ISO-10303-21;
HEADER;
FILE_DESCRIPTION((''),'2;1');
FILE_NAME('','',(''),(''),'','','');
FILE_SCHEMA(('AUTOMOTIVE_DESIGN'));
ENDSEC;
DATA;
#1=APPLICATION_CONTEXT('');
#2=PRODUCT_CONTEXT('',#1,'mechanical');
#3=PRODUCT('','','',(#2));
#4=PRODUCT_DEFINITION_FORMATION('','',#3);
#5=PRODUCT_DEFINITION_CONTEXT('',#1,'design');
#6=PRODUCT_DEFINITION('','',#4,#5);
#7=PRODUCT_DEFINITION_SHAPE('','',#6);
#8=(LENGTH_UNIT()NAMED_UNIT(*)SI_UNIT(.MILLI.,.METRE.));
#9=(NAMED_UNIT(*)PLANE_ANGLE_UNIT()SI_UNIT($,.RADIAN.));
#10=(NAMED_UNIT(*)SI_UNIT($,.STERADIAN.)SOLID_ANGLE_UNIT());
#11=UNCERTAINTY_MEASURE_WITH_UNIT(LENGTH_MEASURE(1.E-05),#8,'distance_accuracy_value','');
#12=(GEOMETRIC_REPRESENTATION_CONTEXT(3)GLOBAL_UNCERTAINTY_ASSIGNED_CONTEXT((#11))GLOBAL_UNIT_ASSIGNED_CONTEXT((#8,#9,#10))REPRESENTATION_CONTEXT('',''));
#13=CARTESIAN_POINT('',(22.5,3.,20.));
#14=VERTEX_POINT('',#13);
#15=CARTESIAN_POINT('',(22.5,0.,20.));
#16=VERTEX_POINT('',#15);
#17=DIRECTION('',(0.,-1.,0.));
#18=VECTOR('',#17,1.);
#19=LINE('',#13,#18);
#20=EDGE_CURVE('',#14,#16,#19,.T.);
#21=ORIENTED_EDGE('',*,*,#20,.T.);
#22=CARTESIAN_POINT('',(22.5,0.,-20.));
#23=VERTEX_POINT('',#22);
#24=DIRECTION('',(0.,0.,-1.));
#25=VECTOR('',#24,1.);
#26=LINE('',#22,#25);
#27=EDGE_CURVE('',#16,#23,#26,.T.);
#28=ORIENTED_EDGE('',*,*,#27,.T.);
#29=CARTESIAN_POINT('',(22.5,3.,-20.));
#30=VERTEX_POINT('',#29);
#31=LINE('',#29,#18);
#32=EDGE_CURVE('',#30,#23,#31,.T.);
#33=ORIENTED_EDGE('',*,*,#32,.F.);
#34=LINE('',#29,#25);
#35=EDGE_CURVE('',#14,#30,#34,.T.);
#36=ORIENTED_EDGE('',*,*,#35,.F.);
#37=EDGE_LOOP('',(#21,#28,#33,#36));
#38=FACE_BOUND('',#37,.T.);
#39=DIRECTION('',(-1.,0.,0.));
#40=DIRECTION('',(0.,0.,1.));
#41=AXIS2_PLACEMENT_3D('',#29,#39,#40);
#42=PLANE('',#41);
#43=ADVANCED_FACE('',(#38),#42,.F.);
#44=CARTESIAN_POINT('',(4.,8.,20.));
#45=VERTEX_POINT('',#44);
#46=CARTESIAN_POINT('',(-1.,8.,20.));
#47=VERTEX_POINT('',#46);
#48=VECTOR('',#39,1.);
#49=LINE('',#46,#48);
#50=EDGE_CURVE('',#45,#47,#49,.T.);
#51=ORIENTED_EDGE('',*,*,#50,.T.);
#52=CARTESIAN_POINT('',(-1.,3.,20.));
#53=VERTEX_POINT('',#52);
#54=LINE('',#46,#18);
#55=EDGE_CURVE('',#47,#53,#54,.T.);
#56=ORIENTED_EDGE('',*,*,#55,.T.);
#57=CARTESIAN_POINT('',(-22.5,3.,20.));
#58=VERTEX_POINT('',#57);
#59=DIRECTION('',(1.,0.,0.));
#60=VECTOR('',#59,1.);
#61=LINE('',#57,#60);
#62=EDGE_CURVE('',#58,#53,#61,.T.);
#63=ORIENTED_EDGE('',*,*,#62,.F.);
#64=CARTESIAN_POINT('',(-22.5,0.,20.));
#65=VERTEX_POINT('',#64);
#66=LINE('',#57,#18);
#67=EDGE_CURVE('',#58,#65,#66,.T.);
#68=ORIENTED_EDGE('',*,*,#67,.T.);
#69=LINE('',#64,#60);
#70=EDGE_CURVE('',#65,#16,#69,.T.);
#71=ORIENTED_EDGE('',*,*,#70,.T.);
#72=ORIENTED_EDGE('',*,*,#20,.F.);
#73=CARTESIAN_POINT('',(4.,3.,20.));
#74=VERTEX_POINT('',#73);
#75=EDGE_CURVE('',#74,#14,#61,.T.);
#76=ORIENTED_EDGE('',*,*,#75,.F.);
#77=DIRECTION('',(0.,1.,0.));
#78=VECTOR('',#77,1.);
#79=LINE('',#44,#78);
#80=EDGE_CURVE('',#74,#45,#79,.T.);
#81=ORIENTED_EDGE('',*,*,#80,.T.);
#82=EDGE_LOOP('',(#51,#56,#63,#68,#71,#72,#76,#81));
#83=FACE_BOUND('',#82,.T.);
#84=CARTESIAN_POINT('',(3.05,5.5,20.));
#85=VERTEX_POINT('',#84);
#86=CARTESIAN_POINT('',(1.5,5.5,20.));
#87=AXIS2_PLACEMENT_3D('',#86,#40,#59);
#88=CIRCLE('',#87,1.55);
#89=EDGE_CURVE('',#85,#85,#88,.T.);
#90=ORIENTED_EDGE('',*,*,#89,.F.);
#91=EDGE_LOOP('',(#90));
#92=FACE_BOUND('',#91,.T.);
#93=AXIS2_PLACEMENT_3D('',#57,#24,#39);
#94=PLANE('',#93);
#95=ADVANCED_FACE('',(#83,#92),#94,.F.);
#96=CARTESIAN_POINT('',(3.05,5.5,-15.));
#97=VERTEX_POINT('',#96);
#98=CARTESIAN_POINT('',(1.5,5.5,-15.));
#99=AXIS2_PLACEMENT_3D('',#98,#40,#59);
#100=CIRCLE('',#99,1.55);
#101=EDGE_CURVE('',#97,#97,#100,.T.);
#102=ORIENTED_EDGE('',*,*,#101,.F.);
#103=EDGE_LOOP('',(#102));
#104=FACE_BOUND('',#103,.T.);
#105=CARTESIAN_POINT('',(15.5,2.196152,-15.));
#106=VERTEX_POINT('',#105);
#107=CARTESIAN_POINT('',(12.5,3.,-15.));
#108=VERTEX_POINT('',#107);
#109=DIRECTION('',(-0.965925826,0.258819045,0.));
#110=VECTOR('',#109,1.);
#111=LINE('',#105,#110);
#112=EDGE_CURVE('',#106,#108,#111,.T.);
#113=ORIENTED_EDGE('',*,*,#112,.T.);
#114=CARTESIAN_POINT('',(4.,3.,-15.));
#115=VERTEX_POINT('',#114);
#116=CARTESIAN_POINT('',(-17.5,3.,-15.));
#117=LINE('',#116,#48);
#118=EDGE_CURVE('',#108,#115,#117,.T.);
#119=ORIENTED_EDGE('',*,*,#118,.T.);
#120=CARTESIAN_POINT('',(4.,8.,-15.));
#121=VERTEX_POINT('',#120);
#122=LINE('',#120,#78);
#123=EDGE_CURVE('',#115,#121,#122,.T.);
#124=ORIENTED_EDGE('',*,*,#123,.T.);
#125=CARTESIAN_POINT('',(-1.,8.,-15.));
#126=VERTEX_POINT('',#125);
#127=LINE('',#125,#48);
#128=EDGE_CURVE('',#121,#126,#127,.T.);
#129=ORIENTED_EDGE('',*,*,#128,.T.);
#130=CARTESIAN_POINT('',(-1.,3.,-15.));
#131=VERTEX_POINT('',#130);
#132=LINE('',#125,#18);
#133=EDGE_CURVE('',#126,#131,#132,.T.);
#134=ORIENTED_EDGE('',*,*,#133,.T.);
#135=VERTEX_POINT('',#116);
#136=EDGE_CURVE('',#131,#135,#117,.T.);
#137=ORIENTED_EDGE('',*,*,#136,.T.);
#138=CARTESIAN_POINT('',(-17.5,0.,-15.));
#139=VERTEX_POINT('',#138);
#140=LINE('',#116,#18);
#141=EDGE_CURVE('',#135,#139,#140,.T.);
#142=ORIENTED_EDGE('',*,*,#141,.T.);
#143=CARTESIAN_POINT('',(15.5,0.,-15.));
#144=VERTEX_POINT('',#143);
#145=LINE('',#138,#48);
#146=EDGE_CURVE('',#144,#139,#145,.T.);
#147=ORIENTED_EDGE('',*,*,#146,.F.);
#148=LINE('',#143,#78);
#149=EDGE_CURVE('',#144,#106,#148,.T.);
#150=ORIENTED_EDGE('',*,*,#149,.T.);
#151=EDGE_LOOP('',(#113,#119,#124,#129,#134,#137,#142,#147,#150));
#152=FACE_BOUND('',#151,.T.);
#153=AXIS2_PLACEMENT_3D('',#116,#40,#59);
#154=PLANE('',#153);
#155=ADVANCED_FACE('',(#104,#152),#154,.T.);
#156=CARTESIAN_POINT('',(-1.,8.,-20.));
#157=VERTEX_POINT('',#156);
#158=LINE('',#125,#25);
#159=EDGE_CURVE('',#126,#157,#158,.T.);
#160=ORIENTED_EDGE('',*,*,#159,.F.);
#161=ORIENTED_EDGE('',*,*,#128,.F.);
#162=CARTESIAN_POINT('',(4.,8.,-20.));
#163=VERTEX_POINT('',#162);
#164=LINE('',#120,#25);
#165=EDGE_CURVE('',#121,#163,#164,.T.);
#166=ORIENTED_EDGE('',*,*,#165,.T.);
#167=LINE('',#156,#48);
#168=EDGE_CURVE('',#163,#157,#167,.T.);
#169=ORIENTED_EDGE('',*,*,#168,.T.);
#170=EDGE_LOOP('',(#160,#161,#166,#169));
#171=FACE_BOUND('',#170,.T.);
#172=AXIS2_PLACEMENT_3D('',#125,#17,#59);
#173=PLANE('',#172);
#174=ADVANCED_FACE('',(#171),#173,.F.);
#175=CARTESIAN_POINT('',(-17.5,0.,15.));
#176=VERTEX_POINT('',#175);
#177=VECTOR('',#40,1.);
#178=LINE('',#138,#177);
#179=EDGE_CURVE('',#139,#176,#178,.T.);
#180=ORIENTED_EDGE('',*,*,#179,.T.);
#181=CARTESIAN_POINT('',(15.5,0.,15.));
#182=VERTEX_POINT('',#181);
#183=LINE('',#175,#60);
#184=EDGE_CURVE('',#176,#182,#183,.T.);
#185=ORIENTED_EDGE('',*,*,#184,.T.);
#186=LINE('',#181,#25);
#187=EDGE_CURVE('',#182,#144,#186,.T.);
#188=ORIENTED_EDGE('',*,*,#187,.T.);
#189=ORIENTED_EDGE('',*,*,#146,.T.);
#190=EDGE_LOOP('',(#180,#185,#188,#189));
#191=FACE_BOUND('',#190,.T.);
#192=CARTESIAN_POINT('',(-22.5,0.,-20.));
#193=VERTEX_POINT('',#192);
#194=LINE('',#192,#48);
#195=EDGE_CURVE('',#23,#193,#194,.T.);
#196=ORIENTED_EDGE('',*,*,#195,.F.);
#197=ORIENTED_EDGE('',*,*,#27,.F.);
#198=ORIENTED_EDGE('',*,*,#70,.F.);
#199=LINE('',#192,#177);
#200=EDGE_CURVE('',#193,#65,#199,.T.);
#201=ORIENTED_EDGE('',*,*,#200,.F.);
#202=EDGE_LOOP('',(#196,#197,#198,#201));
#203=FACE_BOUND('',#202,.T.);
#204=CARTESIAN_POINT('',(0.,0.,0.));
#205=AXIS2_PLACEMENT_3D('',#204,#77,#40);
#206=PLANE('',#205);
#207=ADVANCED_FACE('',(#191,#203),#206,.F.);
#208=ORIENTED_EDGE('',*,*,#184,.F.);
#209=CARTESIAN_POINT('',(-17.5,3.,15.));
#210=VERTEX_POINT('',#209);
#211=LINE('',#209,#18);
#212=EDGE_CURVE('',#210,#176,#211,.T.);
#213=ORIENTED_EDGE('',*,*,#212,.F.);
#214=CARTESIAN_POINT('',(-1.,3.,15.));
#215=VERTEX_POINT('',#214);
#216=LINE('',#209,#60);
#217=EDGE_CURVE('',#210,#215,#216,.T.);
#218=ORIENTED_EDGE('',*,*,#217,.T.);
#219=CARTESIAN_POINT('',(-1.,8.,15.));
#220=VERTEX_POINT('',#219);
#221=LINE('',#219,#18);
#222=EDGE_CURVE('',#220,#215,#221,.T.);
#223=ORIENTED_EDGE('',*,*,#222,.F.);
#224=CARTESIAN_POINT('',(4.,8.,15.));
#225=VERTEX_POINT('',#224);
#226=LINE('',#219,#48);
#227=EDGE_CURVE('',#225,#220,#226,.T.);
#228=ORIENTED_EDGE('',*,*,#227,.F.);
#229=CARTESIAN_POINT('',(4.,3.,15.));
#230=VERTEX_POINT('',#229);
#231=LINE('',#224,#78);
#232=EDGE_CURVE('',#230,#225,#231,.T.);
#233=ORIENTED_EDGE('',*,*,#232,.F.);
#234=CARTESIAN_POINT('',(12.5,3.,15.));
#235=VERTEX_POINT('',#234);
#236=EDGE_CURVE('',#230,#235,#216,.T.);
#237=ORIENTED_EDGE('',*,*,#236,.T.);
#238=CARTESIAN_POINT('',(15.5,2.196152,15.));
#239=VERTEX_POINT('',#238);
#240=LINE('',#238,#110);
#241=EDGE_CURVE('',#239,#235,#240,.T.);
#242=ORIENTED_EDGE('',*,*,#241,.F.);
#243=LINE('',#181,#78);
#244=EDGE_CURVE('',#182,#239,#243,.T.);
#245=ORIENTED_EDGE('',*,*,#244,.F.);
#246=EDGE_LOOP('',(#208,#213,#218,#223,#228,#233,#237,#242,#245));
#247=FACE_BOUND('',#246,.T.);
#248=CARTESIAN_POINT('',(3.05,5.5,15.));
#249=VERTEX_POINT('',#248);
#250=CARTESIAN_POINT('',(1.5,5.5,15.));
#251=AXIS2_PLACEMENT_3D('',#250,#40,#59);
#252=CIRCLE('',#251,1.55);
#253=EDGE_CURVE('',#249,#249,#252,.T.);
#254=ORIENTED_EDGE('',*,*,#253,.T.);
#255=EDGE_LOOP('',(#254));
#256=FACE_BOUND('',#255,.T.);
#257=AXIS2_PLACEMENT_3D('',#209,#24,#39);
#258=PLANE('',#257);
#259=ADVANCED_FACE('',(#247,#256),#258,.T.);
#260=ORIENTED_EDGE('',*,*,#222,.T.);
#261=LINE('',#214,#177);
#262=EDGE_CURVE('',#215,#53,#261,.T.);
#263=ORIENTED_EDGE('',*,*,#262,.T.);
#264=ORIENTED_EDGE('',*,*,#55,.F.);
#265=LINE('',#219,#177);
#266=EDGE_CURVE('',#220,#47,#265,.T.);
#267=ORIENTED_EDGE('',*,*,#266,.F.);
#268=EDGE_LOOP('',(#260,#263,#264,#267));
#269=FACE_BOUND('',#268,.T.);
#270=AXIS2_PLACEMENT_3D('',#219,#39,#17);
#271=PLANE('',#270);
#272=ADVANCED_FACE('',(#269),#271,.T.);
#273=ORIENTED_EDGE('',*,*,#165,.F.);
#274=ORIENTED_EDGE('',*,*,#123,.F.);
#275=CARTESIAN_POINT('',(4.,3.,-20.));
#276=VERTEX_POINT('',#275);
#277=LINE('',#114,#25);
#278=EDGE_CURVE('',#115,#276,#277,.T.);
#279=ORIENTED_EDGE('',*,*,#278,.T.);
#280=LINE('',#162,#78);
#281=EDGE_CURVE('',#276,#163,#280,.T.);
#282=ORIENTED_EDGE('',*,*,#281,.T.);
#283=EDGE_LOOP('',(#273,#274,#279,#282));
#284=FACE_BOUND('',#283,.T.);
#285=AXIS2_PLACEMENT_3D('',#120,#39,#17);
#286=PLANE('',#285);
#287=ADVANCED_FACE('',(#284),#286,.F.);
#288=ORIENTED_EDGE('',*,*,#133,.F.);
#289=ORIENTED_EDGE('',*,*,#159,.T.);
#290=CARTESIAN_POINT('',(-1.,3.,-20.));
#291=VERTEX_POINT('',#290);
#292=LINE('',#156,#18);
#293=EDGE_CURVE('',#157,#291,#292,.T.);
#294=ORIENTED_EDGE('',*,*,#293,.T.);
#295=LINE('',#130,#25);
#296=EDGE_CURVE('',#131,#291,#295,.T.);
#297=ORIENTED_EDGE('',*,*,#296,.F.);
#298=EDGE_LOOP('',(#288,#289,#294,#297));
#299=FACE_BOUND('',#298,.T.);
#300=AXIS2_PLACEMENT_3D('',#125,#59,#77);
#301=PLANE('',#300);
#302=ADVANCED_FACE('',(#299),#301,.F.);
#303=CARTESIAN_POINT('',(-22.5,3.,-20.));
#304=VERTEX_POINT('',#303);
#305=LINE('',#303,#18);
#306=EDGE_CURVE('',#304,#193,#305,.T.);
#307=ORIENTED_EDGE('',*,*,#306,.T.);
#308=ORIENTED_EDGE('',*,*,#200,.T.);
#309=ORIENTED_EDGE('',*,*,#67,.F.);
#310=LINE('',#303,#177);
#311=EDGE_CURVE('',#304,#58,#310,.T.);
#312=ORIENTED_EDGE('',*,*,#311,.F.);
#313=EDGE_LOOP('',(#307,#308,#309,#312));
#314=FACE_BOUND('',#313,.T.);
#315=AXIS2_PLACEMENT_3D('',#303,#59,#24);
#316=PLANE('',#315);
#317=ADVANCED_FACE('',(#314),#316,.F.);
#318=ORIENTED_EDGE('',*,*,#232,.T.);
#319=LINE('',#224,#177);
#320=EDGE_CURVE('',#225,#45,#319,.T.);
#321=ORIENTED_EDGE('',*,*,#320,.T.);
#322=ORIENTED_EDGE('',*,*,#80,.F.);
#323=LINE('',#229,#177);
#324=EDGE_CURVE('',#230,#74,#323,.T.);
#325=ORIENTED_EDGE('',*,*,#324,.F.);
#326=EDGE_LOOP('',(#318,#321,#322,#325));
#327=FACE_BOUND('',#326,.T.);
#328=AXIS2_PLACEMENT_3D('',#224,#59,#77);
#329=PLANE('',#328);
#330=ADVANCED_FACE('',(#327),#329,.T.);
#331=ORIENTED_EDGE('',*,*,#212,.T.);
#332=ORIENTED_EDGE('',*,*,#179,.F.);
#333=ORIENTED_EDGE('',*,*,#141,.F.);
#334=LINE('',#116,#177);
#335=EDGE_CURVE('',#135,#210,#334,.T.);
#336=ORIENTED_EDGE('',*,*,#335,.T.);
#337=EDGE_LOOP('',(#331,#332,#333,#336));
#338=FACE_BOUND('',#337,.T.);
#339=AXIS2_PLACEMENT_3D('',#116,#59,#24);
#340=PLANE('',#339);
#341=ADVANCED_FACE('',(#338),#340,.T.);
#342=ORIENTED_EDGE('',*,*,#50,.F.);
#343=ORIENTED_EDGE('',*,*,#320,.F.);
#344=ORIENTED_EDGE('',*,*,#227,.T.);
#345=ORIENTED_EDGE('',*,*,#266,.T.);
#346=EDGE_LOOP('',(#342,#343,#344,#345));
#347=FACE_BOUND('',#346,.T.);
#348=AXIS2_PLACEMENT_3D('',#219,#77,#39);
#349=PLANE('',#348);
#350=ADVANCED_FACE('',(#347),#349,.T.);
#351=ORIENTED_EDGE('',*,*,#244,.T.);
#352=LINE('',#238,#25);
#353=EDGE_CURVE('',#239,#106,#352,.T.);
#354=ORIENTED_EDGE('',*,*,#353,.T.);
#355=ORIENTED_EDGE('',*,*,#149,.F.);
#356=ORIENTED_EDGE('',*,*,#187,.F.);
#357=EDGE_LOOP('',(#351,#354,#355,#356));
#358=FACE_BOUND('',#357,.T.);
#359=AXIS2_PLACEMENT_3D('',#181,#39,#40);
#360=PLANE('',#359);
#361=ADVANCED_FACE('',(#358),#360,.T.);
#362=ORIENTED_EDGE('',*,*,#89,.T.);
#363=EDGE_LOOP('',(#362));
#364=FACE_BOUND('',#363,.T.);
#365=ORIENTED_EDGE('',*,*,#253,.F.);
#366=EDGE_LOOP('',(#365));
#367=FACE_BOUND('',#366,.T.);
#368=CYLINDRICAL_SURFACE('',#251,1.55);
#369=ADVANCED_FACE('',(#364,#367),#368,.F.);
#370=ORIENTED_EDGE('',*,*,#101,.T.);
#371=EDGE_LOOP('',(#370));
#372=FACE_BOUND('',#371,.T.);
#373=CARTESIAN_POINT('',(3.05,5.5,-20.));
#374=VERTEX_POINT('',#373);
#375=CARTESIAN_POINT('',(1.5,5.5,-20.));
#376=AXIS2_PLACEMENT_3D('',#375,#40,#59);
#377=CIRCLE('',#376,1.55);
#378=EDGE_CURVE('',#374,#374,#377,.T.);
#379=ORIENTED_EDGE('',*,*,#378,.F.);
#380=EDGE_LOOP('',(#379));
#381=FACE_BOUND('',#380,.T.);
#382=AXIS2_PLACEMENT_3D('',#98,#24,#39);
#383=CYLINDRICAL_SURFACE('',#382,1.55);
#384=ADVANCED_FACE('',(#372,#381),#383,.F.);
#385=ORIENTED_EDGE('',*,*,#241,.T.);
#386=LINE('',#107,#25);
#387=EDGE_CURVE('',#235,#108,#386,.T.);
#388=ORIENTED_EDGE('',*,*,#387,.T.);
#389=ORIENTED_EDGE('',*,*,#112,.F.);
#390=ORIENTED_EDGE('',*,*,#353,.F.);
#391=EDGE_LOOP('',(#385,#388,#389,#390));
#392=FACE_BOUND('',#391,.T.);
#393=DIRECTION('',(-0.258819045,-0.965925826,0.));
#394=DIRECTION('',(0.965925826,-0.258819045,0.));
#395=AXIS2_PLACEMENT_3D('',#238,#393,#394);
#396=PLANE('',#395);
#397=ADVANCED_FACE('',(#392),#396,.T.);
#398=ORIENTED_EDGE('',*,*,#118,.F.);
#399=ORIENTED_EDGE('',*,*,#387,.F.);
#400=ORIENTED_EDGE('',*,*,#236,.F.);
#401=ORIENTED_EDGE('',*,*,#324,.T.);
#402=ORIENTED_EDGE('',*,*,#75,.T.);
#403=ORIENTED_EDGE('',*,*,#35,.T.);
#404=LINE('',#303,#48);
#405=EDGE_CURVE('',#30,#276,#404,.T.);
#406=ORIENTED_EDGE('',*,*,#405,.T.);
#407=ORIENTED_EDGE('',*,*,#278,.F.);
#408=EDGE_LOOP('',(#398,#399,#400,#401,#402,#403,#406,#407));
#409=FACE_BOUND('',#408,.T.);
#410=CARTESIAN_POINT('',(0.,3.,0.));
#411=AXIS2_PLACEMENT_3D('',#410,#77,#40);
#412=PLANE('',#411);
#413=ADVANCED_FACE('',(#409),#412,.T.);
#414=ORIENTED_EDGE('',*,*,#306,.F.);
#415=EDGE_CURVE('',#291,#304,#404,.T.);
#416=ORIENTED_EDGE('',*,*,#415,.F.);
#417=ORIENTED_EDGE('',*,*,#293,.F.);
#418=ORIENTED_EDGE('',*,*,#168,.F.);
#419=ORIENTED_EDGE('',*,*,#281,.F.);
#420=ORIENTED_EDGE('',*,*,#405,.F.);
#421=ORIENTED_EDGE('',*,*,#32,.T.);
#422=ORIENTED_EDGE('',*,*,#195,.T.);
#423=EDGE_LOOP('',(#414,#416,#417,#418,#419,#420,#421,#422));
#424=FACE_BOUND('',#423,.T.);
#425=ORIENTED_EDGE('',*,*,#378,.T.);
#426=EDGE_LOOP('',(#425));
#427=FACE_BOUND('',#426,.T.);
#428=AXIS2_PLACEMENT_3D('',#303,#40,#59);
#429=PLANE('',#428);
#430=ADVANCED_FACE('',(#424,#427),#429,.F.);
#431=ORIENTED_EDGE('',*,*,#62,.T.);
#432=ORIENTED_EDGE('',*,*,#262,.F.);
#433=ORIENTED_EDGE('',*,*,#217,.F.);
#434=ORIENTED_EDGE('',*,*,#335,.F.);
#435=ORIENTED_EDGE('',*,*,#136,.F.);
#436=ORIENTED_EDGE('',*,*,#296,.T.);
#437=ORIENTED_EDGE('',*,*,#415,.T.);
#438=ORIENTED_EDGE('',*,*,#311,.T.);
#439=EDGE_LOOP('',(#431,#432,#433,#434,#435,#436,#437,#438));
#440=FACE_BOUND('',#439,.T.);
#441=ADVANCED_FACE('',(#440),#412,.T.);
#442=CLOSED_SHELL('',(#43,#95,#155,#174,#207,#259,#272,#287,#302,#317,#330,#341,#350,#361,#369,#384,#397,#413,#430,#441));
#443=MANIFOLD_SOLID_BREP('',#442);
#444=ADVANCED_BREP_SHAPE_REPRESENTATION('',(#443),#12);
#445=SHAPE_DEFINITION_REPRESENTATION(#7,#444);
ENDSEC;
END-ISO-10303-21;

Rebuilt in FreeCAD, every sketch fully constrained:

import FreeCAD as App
import Part
import Sketcher

V = App.Vector
Q = App.Units.Quantity

doc = App.newDocument("Part")
body = doc.addObject("PartDesign::Body", "Body")

# Sketch on XZ plane
sketch1 = doc.addObject("Sketcher::SketchObject", "Sketch")
body.addObject(sketch1)
sketch1.AttachmentSupport = (doc.XZ_Plane, [""])
sketch1.MapMode = "FlatFace"
sketch1.addGeometry(Part.LineSegment(V(-22, -20, 0), V(-22, 20, 0)), False)
sketch1.addGeometry(Part.LineSegment(V(-22, 20, 0), V(22, 20, 0)), False)
sketch1.addGeometry(Part.LineSegment(V(22, 20, 0), V(22, -20, 0)), False)
sketch1.addGeometry(Part.LineSegment(V(22, -20, 0), V(-22, -20, 0)), False)
sketch1.addGeometry(Part.LineSegment(V(12, 15, 0), V(-18, 15, 0)), False)
sketch1.addGeometry(Part.LineSegment(V(-18, 15, 0), V(-18, -15, 0)), False)
sketch1.addGeometry(Part.LineSegment(V(-18, -15, 0), V(12, -15, 0)), False)
sketch1.addGeometry(Part.LineSegment(V(12, -15, 0), V(12, 15, 0)), False)
sketch1.addConstraint(Sketcher.Constraint("Coincident", 0, 2, 1, 1))
sketch1.addConstraint(Sketcher.Constraint("Coincident", 1, 2, 2, 1))
sketch1.addConstraint(Sketcher.Constraint("Coincident", 2, 2, 3, 1))
sketch1.addConstraint(Sketcher.Constraint("Coincident", 3, 2, 0, 1))
sketch1.addConstraint(Sketcher.Constraint("Coincident", 4, 2, 5, 1))
sketch1.addConstraint(Sketcher.Constraint("Coincident", 5, 2, 6, 1))
sketch1.addConstraint(Sketcher.Constraint("Coincident", 6, 2, 7, 1))
sketch1.addConstraint(Sketcher.Constraint("Coincident", 7, 2, 4, 1))
sketch1.addConstraint(Sketcher.Constraint("Vertical", 0))
sketch1.addConstraint(Sketcher.Constraint("Horizontal", 1))
sketch1.addConstraint(Sketcher.Constraint("Vertical", 2))
sketch1.addConstraint(Sketcher.Constraint("Horizontal", 3))
sketch1.addConstraint(Sketcher.Constraint("Horizontal", 4))
sketch1.addConstraint(Sketcher.Constraint("Vertical", 5))
sketch1.addConstraint(Sketcher.Constraint("Horizontal", 6))
sketch1.addConstraint(Sketcher.Constraint("Vertical", 7))
sketch1.addConstraint(Sketcher.Constraint("Symmetric", 0, 2, 2, 2, -1, 1))
sketch1.addConstraint(Sketcher.Constraint("Equal", 6, 5))
sketch1.addConstraint(Sketcher.Constraint("DistanceX", 1, 1, 1, 2, 45.0))
sketch1.addConstraint(Sketcher.Constraint("DistanceX", 4, 2, 4, 1, 30.0))
sketch1.addConstraint(Sketcher.Constraint("DistanceY", 0, 1, 0, 2, 40.0))
sketch1.addConstraint(Sketcher.Constraint("DistanceY", -1, 1, 4, 2, 15.0))
sketch1.addConstraint(Sketcher.Constraint("DistanceX", 0, 2, 4, 2, 5.0))
pad1 = doc.addObject("PartDesign::Pad", "Pad")
body.addObject(pad1)
pad1.Profile = sketch1
pad1.Length = 3
pad1.Reversed = True

# Sketch on XY plane
sketch2 = doc.addObject("Sketcher::SketchObject", "Sketch001")
body.addObject(sketch2)
sketch2.AttachmentSupport = (doc.XY_Plane, [""])
sketch2.MapMode = "FlatFace"
sketch2.AttachmentOffset = App.Placement(V(0, 0, -15), App.Rotation())
sketch2.addGeometry(Part.LineSegment(V(12.5, 0, 0), V(15.5, 0, 0)), False)
sketch2.addGeometry(Part.LineSegment(V(15.5, 0, 0), V(15.5, 2.2, 0)), False)
sketch2.addGeometry(Part.LineSegment(V(15.5, 2.2, 0), V(12.5, 3, 0)), False)
sketch2.addGeometry(Part.LineSegment(V(12.5, 3, 0), V(12.5, 0, 0)), False)
sketch2.addConstraint(Sketcher.Constraint("Coincident", 0, 2, 1, 1))
sketch2.addConstraint(Sketcher.Constraint("Coincident", 1, 2, 2, 1))
sketch2.addConstraint(Sketcher.Constraint("Coincident", 2, 2, 3, 1))
sketch2.addConstraint(Sketcher.Constraint("Coincident", 3, 2, 0, 1))
sketch2.addConstraint(Sketcher.Constraint("Horizontal", 0))
sketch2.addConstraint(Sketcher.Constraint("Vertical", 1))
sketch2.addConstraint(Sketcher.Constraint("Vertical", 3))
sketch2.addConstraint(Sketcher.Constraint("PointOnObject", 0, 2, -1))
sketch2.addConstraint(Sketcher.Constraint("Equal", 0, 3))
sketch2.addConstraint(Sketcher.Constraint("DistanceX", 0, 1, 0, 2, 3.0))
sketch2.addConstraint(Sketcher.Constraint("Angle", 2, Q("165 deg")))
sketch2.addConstraint(Sketcher.Constraint("DistanceX", -1, 1, 0, 2, 15.5))
pocket1 = doc.addObject("PartDesign::Pocket", "Pocket")
body.addObject(pocket1)
pocket1.Profile = sketch2
pocket1.Length = 30
pocket1.Reversed = True

# Sketch on XY plane
sketch3 = doc.addObject("Sketcher::SketchObject", "Sketch002")
body.addObject(sketch3)
sketch3.AttachmentSupport = (doc.XY_Plane, [""])
sketch3.MapMode = "FlatFace"
sketch3.AttachmentOffset = App.Placement(V(0, 0, 20), App.Rotation())
sketch3.addGeometry(Part.LineSegment(V(-1, 8, 0), V(-1, 3, 0)), False)
sketch3.addGeometry(Part.LineSegment(V(-1, 3, 0), V(4, 3, 0)), False)
sketch3.addGeometry(Part.LineSegment(V(4, 3, 0), V(4, 8, 0)), False)
sketch3.addGeometry(Part.LineSegment(V(4, 8, 0), V(-1, 8, 0)), False)
sketch3.addGeometry(Part.Circle(V(1.5, 5.5, 0), V(0, 0, 1), 1.6), False)
sketch3.addConstraint(Sketcher.Constraint("Coincident", 0, 2, 1, 1))
sketch3.addConstraint(Sketcher.Constraint("Coincident", 1, 2, 2, 1))
sketch3.addConstraint(Sketcher.Constraint("Coincident", 2, 2, 3, 1))
sketch3.addConstraint(Sketcher.Constraint("Coincident", 3, 2, 0, 1))
sketch3.addConstraint(Sketcher.Constraint("Vertical", 0))
sketch3.addConstraint(Sketcher.Constraint("Horizontal", 1))
sketch3.addConstraint(Sketcher.Constraint("Vertical", 2))
sketch3.addConstraint(Sketcher.Constraint("Horizontal", 3))
sketch3.addConstraint(Sketcher.Constraint("Equal", 3, 0))
sketch3.addConstraint(Sketcher.Constraint("Diameter", 4, 3.1))
sketch3.addConstraint(Sketcher.Constraint("DistanceX", 1, 1, 1, 2, 5.0))
sketch3.addConstraint(Sketcher.Constraint("DistanceX", 0, 2, -1, 1, 1.0))
sketch3.addConstraint(Sketcher.Constraint("DistanceY", -1, 1, 0, 2, 3.0))
sketch3.addConstraint(Sketcher.Constraint("DistanceX", -1, 1, 4, 3, 1.5))
sketch3.addConstraint(Sketcher.Constraint("DistanceY", -1, 1, 4, 3, 5.5))
pad2 = doc.addObject("PartDesign::Pad", "Pad001")
body.addObject(pad2)
pad2.Profile = sketch3
pad2.Length = 5
pad2.Reversed = True
doc.recompute()

mirrored = doc.addObject("PartDesign::Mirrored", "Mirrored")
body.addObject(mirrored)
mirrored.Originals = [pad2]
mirrored.MirrorPlane = (doc.XY_Plane, [""])
body.Tip = mirrored

doc.recompute()
